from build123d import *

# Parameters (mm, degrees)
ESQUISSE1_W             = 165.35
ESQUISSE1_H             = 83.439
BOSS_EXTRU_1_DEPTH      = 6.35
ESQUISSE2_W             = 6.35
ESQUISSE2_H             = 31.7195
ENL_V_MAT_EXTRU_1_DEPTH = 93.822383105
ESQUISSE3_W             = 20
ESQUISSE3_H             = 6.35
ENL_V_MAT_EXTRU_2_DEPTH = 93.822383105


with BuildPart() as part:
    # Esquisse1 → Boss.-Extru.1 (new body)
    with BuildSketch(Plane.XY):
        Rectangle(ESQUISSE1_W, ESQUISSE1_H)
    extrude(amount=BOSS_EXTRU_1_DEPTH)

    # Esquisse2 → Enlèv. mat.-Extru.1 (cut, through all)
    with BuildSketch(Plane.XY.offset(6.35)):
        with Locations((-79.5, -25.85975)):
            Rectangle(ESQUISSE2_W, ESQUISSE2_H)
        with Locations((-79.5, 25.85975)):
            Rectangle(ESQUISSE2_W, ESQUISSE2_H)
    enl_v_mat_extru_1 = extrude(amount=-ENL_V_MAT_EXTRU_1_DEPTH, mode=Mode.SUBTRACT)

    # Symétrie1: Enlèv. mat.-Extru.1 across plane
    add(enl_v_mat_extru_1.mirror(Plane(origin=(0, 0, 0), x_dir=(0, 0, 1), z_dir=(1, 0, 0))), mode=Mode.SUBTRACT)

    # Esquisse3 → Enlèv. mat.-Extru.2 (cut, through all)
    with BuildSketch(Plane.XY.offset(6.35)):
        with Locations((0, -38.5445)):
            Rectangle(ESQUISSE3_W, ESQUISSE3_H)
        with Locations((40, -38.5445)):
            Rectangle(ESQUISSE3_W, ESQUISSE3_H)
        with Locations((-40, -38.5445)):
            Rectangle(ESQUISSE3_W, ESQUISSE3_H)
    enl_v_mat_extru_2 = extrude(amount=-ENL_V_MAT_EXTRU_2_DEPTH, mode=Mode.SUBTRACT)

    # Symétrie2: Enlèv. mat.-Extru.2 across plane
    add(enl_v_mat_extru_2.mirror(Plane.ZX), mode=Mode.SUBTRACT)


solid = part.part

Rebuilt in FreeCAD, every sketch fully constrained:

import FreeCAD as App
import Part
import Sketcher
Q = App.Units.Quantity


def add_polygon(sketch, points):
    """Adds a closed chain of lines whose ends are joined by coincident constraints."""
    first, n = sketch.GeometryCount, len(points)
    for a, b in zip(points, points[1:] + points[:1]):
        sketch.addGeometry(Part.LineSegment(App.Vector(*a, 0), App.Vector(*b, 0)), False)
    for i in range(n):
        sketch.addConstraint(Sketcher.Constraint("Coincident", first + i, 2, first + (i + 1) % n, 1))

doc = App.newDocument("Part")
body = doc.addObject("PartDesign::Body", "Body")

# Sketch on XY plane
sketch1 = body.newObject("Sketcher::SketchObject", "Sketch")
sketch1.AttachmentSupport = (doc.getObject("XY_Plane"), [""])
sketch1.MapMode = "FlatFace"
add_polygon(sketch1, [(-83, 42), (-83, -42), (83, -42), (83, 42)])  # lines 0-3
sketch1.addConstraint(Sketcher.Constraint("Vertical", 0))
sketch1.addConstraint(Sketcher.Constraint("Horizontal", 1))
sketch1.addConstraint(Sketcher.Constraint("Vertical", 2))
sketch1.addConstraint(Sketcher.Constraint("Horizontal", 3))
sketch1.addConstraint(Sketcher.Constraint("Symmetric", 0, 2, 2, 2, -1, 1))
sketch1.addConstraint(Sketcher.Constraint("DistanceY", 0, 2, 0, 1, Q("3.285 in")))
sketch1.addConstraint(Sketcher.Constraint("DistanceX", 1, 1, 1, 2, Q("165.35 mm")))
pad1 = body.newObject("PartDesign::Pad", "Pad")
pad1.Profile = sketch1
pad1.Length = Q("0.25 in")

# Sketch on XY plane
sketch2 = body.newObject("Sketcher::SketchObject", "Sketch001")
sketch2.AttachmentSupport = (doc.getObject("XY_Plane"), [""])
sketch2.MapMode = "FlatFace"
sketch2.AttachmentOffset = App.Placement(App.Vector(0, 0, 0.25 * 25.4), App.Rotation())
add_polygon(sketch2, [(-83, -10), (-83, -42), (-76, -42), (-76, -10)])  # lines 0-3
add_polygon(sketch2, [(-83, 42), (-83, 10), (-76, 10), (-76, 42)])  # lines 4-7
sketch2.addConstraint(Sketcher.Constraint("Vertical", 0))
sketch2.addConstraint(Sketcher.Constraint("Horizontal", 1))
sketch2.addConstraint(Sketcher.Constraint("Vertical", 2))
sketch2.addConstraint(Sketcher.Constraint("Horizontal", 3))
sketch2.addConstraint(Sketcher.Constraint("Vertical", 4))
sketch2.addConstraint(Sketcher.Constraint("Horizontal", 5))
sketch2.addConstraint(Sketcher.Constraint("Vertical", 6))
sketch2.addConstraint(Sketcher.Constraint("Horizontal", 7))
sketch2.addConstraint(Sketcher.Constraint("Symmetric", 3, 2, 4, 2, -1))
sketch2.addConstraint(Sketcher.Constraint("Symmetric", 1, 2, 6, 2, -1))
sketch2.addConstraint(Sketcher.Constraint("DistanceX", 1, 1, 1, 2, Q("0.25 in")))
sketch2.addConstraint(Sketcher.Constraint("DistanceY", 1, 2, 6, 2, Q("3.285 in")))
sketch2.addConstraint(Sketcher.Constraint("DistanceY", 0, 2, 0, 1, Q("31.7195 mm")))
sketch2.addConstraint(Sketcher.Constraint("DistanceX", 0, 2, -1, 1, Q("82.675 mm")))
pocket1 = body.newObject("PartDesign::Pocket", "Pocket")
pocket1.Profile = sketch2
pocket1.Type = "ThroughAll"
doc.recompute()

mirrored = body.newObject("PartDesign::Mirrored", "Mirrored")
mirrored.Originals = [pocket1]
mirrored.MirrorPlane = (doc.getObject("YZ_Plane"), [""])
body.Tip = mirrored

# Sketch on XY plane
sketch3 = body.newObject("Sketcher::SketchObject", "Sketch002")
sketch3.AttachmentSupport = (doc.getObject("XY_Plane"), [""])
sketch3.MapMode = "FlatFace"
sketch3.AttachmentOffset = App.Placement(App.Vector(0, 0, 0.25 * 25.4), App.Rotation())
add_polygon(sketch3, [(-10, -35), (-10, -42), (10, -42), (10, -35)])  # lines 0-3
add_polygon(sketch3, [(30, -35), (30, -42), (50, -42), (50, -35)])  # lines 4-7
add_polygon(sketch3, [(-50, -35), (-50, -42), (-30, -42), (-30, -35)])  # lines 8-11
sketch3.addConstraint(Sketcher.Constraint("Vertical", 0))
sketch3.addConstraint(Sketcher.Constraint("Horizontal", 1))
sketch3.addConstraint(Sketcher.Constraint("Vertical", 2))
sketch3.addConstraint(Sketcher.Constraint("Horizontal", 3))
sketch3.addConstraint(Sketcher.Constraint("Vertical", 4))
sketch3.addConstraint(Sketcher.Constraint("Horizontal", 5))
sketch3.addConstraint(Sketcher.Constraint("Vertical", 6))
sketch3.addConstraint(Sketcher.Constraint("Horizontal", 7))
sketch3.addConstraint(Sketcher.Constraint("Vertical", 8))
sketch3.addConstraint(Sketcher.Constraint("Horizontal", 9))
sketch3.addConstraint(Sketcher.Constraint("Vertical", 10))
sketch3.addConstraint(Sketcher.Constraint("Horizontal", 11))
sketch3.addConstraint(Sketcher.Constraint("Symmetric", 5, 2, 8, 2, -2))
sketch3.addConstraint(Sketcher.Constraint("Symmetric", 7, 2, 10, 2, -2))
sketch3.addConstraint(Sketcher.Constraint("Horizontal", 1, 2, 4, 2))
sketch3.addConstraint(Sketcher.Constraint("Horizontal", 3, 2, 6, 2))
sketch3.addConstraint(Sketcher.Constraint("Equal", 3, 5))
sketch3.addConstraint(Sketcher.Constraint("DistanceY", 0, 2, 0, 1, Q("0.25 in")))
sketch3.addConstraint(Sketcher.Constraint("DistanceX", 1, 1, 1, 2, Q("20 mm")))
sketch3.addConstraint(Sketcher.Constraint("DistanceY", 0, 2, -1, 1, Q("1.6425 in")))
sketch3.addConstraint(Sketcher.Constraint("DistanceX", 0, 2, -1, 1, Q("10 mm")))
sketch3.addConstraint(Sketcher.Constraint("DistanceX", -1, 1, 4, 2, Q("30 mm")))
pocket2 = body.newObject("PartDesign::Pocket", "Pocket001")
pocket2.Profile = sketch3
pocket2.Type = "ThroughAll"
doc.recompute()

mirrored2 = body.newObject("PartDesign::Mirrored", "Mirrored001")
mirrored2.Originals = [pocket2]
mirrored2.MirrorPlane = (doc.getObject("XZ_Plane"), [""])
body.Tip = mirrored2

doc.recompute()
